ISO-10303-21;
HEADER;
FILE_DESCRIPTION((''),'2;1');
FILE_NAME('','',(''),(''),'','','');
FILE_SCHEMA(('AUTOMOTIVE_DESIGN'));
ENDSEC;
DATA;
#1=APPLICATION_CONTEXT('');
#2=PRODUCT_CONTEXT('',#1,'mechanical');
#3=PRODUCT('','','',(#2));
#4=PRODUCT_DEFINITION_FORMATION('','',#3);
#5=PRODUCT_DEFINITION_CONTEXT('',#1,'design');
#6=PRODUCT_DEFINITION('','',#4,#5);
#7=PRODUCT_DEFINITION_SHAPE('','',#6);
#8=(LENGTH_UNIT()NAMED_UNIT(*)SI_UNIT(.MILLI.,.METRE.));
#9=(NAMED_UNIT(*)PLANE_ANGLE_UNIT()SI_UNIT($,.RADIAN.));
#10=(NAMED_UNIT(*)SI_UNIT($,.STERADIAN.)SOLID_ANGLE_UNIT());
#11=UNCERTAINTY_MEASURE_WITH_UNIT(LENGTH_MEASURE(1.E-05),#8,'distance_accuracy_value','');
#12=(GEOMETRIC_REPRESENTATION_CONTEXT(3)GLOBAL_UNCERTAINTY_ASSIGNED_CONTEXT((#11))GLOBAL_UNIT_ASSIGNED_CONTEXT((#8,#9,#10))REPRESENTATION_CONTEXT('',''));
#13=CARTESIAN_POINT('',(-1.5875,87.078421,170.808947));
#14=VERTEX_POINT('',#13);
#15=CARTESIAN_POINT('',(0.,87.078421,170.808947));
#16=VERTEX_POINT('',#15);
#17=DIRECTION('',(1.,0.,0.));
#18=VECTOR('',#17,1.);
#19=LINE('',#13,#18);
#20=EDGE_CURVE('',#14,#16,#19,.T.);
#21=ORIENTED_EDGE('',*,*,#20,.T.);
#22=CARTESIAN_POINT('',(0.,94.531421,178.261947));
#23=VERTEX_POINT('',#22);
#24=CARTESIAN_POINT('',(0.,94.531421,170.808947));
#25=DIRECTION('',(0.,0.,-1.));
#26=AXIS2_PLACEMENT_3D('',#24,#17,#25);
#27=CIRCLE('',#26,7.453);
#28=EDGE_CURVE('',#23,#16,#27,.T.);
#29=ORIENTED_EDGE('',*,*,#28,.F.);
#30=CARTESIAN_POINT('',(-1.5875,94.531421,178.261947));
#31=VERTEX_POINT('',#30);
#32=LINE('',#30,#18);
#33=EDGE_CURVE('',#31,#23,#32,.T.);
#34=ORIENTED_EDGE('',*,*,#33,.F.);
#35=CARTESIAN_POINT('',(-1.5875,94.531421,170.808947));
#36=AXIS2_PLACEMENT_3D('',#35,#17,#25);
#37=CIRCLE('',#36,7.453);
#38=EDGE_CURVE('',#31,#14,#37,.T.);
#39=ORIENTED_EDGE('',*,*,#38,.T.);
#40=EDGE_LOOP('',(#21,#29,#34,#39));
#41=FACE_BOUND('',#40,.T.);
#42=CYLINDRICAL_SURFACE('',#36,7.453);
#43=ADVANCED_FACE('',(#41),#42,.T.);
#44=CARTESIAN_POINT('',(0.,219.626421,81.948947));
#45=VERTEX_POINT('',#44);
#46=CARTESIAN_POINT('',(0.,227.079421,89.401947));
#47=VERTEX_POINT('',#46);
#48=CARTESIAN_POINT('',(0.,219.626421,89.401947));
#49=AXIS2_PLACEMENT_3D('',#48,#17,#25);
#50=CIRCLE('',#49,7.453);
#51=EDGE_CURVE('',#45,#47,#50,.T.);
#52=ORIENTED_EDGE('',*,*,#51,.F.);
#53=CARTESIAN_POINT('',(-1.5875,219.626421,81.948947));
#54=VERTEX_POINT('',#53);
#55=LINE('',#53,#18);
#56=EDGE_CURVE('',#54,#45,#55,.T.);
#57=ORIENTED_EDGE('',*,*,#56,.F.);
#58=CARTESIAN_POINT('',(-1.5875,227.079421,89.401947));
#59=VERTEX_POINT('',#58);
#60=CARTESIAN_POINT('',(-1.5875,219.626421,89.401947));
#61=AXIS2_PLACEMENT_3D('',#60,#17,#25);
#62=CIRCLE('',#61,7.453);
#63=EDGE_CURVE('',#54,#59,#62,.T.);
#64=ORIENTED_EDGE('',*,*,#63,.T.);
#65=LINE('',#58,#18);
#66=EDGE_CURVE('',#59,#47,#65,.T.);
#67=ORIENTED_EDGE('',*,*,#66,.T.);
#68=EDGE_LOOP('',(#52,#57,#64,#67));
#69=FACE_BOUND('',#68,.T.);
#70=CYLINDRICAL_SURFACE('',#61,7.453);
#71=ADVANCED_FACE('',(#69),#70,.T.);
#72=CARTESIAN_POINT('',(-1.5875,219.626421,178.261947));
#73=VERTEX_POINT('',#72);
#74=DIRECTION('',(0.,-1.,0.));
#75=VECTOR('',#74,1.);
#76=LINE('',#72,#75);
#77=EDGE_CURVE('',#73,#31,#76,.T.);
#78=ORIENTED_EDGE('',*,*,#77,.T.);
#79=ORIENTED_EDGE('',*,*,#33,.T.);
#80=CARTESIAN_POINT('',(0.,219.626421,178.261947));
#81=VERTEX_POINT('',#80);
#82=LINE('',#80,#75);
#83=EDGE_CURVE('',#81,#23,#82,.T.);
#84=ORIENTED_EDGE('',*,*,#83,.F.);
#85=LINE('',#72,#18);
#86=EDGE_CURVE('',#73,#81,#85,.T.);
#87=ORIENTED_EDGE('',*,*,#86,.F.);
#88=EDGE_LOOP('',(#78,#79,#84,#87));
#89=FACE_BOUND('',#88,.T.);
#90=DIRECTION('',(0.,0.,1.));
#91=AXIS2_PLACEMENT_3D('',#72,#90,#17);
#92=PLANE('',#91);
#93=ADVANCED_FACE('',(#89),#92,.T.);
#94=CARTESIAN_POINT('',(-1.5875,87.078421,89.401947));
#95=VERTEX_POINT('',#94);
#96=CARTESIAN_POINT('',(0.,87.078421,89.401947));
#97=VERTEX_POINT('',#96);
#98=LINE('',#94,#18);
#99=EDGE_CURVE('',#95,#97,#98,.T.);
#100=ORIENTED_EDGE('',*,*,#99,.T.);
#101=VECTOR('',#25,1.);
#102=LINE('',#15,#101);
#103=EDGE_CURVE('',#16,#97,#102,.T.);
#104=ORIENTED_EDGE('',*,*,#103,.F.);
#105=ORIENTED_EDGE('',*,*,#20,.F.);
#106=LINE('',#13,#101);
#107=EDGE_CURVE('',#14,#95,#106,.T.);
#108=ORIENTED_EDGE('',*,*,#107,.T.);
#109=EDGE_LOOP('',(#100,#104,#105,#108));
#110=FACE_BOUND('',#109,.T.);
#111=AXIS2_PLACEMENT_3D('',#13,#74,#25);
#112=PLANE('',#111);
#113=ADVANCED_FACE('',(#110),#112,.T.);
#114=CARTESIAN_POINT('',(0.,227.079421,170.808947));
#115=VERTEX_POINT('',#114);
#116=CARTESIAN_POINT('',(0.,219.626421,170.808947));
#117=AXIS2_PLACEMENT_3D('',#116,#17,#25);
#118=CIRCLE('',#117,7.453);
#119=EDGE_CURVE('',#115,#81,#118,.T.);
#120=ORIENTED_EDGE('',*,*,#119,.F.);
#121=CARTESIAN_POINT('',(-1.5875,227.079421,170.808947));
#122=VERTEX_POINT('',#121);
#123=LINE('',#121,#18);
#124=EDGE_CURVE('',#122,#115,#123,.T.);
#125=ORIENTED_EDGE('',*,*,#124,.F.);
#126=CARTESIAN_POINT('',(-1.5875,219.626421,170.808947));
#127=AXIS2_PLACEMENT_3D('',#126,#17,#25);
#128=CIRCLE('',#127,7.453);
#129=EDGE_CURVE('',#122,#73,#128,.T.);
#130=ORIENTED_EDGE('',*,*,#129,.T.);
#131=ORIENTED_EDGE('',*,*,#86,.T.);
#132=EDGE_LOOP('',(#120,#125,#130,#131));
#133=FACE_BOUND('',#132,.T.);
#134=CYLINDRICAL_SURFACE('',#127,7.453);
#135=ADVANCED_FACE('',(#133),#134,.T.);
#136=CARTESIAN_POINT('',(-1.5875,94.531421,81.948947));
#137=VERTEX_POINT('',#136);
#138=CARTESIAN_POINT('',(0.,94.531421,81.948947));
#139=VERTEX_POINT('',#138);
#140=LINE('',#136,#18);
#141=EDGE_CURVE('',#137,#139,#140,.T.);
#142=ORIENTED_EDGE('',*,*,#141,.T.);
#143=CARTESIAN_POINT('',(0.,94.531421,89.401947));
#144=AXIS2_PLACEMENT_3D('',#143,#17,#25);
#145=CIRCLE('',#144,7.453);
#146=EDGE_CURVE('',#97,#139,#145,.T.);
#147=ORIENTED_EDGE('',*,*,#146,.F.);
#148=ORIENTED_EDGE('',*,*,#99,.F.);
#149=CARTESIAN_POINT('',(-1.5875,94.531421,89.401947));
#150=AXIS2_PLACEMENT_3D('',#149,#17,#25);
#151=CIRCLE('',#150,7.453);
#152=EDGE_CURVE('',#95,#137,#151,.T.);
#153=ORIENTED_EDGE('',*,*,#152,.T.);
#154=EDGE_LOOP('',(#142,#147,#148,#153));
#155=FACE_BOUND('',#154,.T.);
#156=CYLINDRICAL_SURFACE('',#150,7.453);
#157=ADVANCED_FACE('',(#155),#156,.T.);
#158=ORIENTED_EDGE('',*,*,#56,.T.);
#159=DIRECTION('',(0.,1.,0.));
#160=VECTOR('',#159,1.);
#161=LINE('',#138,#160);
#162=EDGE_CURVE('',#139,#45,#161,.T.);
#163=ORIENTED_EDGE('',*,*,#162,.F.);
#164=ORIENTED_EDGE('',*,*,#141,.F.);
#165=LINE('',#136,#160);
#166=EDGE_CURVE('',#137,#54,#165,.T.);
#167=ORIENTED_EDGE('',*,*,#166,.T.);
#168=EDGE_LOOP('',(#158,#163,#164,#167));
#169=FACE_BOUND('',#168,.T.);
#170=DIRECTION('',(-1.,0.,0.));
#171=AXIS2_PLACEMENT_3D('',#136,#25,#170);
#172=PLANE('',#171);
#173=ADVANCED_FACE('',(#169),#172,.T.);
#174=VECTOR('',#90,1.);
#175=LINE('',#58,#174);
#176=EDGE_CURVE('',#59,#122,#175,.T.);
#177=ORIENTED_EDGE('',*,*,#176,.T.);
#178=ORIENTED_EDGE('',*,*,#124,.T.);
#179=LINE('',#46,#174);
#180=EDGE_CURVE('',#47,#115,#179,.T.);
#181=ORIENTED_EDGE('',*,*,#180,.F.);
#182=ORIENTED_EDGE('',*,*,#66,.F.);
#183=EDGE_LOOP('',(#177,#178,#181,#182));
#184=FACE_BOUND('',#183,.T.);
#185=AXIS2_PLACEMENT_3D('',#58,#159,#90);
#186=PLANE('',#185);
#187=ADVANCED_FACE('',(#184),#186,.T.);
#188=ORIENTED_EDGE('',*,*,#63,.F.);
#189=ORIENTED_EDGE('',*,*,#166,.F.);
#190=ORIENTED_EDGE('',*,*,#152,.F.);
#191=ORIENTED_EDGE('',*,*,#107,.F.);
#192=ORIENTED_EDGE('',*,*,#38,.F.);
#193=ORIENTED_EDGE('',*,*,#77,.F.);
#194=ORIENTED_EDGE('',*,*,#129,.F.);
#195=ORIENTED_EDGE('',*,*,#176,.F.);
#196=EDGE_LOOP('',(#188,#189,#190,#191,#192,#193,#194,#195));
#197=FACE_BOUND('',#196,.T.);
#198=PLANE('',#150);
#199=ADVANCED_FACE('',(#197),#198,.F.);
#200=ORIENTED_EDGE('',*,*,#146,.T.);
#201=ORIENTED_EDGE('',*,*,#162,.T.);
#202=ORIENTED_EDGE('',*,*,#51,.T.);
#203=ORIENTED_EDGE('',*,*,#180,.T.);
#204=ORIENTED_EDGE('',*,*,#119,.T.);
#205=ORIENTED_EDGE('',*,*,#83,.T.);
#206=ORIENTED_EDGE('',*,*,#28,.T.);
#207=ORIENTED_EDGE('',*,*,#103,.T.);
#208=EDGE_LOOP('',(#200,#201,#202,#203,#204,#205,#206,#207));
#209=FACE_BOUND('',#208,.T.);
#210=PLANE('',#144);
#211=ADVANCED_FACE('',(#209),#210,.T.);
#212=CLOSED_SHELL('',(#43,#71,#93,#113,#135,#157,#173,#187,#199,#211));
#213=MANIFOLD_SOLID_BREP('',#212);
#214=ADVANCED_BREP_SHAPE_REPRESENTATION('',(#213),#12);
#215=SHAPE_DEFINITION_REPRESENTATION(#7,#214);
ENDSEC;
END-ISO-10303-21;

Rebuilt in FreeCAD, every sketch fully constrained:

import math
import FreeCAD as App
import Part
import Sketcher

V = App.Vector
Q = App.Units.Quantity

doc = App.newDocument("Part")
body = doc.addObject("PartDesign::Body", "Body")

sketch1 = doc.addObject("Sketcher::SketchObject", "Sketch")
body.addObject(sketch1)
sketch1.AttachmentSupport = (doc.YZ_Plane, [""])
sketch1.MapMode = "FlatFace"
sketch1.addGeometry([
    Part.LineSegment(V(95, 82, 0), V(220, 82, 0)),
    Part.ArcOfCircle(Part.Circle(V(220, 89, 0), V(0, 0, 1), 7), math.radians(-90), math.radians(0)),
    Part.LineSegment(V(227, 89, 0), V(227, 171, 0)),
    Part.ArcOfCircle(Part.Circle(V(220, 171, 0), V(0, 0, 1), 7), math.radians(0), math.radians(90)),
    Part.LineSegment(V(220, 178, 0), V(95, 178, 0)),
    Part.ArcOfCircle(Part.Circle(V(95, 171, 0), V(0, 0, 1), 7), math.radians(90), math.radians(180)),
    Part.LineSegment(V(87, 171, 0), V(87, 89, 0)),
    Part.ArcOfCircle(Part.Circle(V(95, 89, 0), V(0, 0, 1), 7), math.radians(-180), math.radians(-90)),
], False)
sketch1.addConstraint([
    Sketcher.Constraint("Tangent", 0, 2, 1, 1),
    Sketcher.Constraint("Tangent", 1, 2, 2, 1),
    Sketcher.Constraint("Tangent", 2, 2, 3, 1),
    Sketcher.Constraint("Tangent", 3, 2, 4, 1),
    Sketcher.Constraint("Tangent", 4, 2, 5, 1),
    Sketcher.Constraint("Tangent", 5, 2, 6, 1),
    Sketcher.Constraint("Tangent", 6, 2, 7, 1),
    Sketcher.Constraint("Tangent", 7, 2, 0, 1),
    Sketcher.Constraint("Horizontal", 0),
    Sketcher.Constraint("Vertical", 2),
    Sketcher.Constraint("Horizontal", 4),
    Sketcher.Constraint("Vertical", 6),
    Sketcher.Constraint("Equal", 1, 3),
    Sketcher.Constraint("Equal", 3, 5),
    Sketcher.Constraint("Equal", 5, 7),
    Sketcher.Constraint("DistanceX", 0, 1, 0, 2, Q("4.925 in")),
    Sketcher.Constraint("DistanceY", 2, 1, 2, 2, Q("3.205 in")),
    Sketcher.Constraint("Radius", 1, 7.453),
    Sketcher.Constraint("DistanceX", -1, 1, 1, 3, 219.626421),
    Sketcher.Constraint("DistanceY", -1, 1, 1, 3, 89.401947),
])
pad1 = doc.addObject("PartDesign::Pad", "Pad")
body.addObject(pad1)
pad1.Profile = sketch1
pad1.Length = Q("0.0625 in")
pad1.Reversed = True

doc.recompute()
